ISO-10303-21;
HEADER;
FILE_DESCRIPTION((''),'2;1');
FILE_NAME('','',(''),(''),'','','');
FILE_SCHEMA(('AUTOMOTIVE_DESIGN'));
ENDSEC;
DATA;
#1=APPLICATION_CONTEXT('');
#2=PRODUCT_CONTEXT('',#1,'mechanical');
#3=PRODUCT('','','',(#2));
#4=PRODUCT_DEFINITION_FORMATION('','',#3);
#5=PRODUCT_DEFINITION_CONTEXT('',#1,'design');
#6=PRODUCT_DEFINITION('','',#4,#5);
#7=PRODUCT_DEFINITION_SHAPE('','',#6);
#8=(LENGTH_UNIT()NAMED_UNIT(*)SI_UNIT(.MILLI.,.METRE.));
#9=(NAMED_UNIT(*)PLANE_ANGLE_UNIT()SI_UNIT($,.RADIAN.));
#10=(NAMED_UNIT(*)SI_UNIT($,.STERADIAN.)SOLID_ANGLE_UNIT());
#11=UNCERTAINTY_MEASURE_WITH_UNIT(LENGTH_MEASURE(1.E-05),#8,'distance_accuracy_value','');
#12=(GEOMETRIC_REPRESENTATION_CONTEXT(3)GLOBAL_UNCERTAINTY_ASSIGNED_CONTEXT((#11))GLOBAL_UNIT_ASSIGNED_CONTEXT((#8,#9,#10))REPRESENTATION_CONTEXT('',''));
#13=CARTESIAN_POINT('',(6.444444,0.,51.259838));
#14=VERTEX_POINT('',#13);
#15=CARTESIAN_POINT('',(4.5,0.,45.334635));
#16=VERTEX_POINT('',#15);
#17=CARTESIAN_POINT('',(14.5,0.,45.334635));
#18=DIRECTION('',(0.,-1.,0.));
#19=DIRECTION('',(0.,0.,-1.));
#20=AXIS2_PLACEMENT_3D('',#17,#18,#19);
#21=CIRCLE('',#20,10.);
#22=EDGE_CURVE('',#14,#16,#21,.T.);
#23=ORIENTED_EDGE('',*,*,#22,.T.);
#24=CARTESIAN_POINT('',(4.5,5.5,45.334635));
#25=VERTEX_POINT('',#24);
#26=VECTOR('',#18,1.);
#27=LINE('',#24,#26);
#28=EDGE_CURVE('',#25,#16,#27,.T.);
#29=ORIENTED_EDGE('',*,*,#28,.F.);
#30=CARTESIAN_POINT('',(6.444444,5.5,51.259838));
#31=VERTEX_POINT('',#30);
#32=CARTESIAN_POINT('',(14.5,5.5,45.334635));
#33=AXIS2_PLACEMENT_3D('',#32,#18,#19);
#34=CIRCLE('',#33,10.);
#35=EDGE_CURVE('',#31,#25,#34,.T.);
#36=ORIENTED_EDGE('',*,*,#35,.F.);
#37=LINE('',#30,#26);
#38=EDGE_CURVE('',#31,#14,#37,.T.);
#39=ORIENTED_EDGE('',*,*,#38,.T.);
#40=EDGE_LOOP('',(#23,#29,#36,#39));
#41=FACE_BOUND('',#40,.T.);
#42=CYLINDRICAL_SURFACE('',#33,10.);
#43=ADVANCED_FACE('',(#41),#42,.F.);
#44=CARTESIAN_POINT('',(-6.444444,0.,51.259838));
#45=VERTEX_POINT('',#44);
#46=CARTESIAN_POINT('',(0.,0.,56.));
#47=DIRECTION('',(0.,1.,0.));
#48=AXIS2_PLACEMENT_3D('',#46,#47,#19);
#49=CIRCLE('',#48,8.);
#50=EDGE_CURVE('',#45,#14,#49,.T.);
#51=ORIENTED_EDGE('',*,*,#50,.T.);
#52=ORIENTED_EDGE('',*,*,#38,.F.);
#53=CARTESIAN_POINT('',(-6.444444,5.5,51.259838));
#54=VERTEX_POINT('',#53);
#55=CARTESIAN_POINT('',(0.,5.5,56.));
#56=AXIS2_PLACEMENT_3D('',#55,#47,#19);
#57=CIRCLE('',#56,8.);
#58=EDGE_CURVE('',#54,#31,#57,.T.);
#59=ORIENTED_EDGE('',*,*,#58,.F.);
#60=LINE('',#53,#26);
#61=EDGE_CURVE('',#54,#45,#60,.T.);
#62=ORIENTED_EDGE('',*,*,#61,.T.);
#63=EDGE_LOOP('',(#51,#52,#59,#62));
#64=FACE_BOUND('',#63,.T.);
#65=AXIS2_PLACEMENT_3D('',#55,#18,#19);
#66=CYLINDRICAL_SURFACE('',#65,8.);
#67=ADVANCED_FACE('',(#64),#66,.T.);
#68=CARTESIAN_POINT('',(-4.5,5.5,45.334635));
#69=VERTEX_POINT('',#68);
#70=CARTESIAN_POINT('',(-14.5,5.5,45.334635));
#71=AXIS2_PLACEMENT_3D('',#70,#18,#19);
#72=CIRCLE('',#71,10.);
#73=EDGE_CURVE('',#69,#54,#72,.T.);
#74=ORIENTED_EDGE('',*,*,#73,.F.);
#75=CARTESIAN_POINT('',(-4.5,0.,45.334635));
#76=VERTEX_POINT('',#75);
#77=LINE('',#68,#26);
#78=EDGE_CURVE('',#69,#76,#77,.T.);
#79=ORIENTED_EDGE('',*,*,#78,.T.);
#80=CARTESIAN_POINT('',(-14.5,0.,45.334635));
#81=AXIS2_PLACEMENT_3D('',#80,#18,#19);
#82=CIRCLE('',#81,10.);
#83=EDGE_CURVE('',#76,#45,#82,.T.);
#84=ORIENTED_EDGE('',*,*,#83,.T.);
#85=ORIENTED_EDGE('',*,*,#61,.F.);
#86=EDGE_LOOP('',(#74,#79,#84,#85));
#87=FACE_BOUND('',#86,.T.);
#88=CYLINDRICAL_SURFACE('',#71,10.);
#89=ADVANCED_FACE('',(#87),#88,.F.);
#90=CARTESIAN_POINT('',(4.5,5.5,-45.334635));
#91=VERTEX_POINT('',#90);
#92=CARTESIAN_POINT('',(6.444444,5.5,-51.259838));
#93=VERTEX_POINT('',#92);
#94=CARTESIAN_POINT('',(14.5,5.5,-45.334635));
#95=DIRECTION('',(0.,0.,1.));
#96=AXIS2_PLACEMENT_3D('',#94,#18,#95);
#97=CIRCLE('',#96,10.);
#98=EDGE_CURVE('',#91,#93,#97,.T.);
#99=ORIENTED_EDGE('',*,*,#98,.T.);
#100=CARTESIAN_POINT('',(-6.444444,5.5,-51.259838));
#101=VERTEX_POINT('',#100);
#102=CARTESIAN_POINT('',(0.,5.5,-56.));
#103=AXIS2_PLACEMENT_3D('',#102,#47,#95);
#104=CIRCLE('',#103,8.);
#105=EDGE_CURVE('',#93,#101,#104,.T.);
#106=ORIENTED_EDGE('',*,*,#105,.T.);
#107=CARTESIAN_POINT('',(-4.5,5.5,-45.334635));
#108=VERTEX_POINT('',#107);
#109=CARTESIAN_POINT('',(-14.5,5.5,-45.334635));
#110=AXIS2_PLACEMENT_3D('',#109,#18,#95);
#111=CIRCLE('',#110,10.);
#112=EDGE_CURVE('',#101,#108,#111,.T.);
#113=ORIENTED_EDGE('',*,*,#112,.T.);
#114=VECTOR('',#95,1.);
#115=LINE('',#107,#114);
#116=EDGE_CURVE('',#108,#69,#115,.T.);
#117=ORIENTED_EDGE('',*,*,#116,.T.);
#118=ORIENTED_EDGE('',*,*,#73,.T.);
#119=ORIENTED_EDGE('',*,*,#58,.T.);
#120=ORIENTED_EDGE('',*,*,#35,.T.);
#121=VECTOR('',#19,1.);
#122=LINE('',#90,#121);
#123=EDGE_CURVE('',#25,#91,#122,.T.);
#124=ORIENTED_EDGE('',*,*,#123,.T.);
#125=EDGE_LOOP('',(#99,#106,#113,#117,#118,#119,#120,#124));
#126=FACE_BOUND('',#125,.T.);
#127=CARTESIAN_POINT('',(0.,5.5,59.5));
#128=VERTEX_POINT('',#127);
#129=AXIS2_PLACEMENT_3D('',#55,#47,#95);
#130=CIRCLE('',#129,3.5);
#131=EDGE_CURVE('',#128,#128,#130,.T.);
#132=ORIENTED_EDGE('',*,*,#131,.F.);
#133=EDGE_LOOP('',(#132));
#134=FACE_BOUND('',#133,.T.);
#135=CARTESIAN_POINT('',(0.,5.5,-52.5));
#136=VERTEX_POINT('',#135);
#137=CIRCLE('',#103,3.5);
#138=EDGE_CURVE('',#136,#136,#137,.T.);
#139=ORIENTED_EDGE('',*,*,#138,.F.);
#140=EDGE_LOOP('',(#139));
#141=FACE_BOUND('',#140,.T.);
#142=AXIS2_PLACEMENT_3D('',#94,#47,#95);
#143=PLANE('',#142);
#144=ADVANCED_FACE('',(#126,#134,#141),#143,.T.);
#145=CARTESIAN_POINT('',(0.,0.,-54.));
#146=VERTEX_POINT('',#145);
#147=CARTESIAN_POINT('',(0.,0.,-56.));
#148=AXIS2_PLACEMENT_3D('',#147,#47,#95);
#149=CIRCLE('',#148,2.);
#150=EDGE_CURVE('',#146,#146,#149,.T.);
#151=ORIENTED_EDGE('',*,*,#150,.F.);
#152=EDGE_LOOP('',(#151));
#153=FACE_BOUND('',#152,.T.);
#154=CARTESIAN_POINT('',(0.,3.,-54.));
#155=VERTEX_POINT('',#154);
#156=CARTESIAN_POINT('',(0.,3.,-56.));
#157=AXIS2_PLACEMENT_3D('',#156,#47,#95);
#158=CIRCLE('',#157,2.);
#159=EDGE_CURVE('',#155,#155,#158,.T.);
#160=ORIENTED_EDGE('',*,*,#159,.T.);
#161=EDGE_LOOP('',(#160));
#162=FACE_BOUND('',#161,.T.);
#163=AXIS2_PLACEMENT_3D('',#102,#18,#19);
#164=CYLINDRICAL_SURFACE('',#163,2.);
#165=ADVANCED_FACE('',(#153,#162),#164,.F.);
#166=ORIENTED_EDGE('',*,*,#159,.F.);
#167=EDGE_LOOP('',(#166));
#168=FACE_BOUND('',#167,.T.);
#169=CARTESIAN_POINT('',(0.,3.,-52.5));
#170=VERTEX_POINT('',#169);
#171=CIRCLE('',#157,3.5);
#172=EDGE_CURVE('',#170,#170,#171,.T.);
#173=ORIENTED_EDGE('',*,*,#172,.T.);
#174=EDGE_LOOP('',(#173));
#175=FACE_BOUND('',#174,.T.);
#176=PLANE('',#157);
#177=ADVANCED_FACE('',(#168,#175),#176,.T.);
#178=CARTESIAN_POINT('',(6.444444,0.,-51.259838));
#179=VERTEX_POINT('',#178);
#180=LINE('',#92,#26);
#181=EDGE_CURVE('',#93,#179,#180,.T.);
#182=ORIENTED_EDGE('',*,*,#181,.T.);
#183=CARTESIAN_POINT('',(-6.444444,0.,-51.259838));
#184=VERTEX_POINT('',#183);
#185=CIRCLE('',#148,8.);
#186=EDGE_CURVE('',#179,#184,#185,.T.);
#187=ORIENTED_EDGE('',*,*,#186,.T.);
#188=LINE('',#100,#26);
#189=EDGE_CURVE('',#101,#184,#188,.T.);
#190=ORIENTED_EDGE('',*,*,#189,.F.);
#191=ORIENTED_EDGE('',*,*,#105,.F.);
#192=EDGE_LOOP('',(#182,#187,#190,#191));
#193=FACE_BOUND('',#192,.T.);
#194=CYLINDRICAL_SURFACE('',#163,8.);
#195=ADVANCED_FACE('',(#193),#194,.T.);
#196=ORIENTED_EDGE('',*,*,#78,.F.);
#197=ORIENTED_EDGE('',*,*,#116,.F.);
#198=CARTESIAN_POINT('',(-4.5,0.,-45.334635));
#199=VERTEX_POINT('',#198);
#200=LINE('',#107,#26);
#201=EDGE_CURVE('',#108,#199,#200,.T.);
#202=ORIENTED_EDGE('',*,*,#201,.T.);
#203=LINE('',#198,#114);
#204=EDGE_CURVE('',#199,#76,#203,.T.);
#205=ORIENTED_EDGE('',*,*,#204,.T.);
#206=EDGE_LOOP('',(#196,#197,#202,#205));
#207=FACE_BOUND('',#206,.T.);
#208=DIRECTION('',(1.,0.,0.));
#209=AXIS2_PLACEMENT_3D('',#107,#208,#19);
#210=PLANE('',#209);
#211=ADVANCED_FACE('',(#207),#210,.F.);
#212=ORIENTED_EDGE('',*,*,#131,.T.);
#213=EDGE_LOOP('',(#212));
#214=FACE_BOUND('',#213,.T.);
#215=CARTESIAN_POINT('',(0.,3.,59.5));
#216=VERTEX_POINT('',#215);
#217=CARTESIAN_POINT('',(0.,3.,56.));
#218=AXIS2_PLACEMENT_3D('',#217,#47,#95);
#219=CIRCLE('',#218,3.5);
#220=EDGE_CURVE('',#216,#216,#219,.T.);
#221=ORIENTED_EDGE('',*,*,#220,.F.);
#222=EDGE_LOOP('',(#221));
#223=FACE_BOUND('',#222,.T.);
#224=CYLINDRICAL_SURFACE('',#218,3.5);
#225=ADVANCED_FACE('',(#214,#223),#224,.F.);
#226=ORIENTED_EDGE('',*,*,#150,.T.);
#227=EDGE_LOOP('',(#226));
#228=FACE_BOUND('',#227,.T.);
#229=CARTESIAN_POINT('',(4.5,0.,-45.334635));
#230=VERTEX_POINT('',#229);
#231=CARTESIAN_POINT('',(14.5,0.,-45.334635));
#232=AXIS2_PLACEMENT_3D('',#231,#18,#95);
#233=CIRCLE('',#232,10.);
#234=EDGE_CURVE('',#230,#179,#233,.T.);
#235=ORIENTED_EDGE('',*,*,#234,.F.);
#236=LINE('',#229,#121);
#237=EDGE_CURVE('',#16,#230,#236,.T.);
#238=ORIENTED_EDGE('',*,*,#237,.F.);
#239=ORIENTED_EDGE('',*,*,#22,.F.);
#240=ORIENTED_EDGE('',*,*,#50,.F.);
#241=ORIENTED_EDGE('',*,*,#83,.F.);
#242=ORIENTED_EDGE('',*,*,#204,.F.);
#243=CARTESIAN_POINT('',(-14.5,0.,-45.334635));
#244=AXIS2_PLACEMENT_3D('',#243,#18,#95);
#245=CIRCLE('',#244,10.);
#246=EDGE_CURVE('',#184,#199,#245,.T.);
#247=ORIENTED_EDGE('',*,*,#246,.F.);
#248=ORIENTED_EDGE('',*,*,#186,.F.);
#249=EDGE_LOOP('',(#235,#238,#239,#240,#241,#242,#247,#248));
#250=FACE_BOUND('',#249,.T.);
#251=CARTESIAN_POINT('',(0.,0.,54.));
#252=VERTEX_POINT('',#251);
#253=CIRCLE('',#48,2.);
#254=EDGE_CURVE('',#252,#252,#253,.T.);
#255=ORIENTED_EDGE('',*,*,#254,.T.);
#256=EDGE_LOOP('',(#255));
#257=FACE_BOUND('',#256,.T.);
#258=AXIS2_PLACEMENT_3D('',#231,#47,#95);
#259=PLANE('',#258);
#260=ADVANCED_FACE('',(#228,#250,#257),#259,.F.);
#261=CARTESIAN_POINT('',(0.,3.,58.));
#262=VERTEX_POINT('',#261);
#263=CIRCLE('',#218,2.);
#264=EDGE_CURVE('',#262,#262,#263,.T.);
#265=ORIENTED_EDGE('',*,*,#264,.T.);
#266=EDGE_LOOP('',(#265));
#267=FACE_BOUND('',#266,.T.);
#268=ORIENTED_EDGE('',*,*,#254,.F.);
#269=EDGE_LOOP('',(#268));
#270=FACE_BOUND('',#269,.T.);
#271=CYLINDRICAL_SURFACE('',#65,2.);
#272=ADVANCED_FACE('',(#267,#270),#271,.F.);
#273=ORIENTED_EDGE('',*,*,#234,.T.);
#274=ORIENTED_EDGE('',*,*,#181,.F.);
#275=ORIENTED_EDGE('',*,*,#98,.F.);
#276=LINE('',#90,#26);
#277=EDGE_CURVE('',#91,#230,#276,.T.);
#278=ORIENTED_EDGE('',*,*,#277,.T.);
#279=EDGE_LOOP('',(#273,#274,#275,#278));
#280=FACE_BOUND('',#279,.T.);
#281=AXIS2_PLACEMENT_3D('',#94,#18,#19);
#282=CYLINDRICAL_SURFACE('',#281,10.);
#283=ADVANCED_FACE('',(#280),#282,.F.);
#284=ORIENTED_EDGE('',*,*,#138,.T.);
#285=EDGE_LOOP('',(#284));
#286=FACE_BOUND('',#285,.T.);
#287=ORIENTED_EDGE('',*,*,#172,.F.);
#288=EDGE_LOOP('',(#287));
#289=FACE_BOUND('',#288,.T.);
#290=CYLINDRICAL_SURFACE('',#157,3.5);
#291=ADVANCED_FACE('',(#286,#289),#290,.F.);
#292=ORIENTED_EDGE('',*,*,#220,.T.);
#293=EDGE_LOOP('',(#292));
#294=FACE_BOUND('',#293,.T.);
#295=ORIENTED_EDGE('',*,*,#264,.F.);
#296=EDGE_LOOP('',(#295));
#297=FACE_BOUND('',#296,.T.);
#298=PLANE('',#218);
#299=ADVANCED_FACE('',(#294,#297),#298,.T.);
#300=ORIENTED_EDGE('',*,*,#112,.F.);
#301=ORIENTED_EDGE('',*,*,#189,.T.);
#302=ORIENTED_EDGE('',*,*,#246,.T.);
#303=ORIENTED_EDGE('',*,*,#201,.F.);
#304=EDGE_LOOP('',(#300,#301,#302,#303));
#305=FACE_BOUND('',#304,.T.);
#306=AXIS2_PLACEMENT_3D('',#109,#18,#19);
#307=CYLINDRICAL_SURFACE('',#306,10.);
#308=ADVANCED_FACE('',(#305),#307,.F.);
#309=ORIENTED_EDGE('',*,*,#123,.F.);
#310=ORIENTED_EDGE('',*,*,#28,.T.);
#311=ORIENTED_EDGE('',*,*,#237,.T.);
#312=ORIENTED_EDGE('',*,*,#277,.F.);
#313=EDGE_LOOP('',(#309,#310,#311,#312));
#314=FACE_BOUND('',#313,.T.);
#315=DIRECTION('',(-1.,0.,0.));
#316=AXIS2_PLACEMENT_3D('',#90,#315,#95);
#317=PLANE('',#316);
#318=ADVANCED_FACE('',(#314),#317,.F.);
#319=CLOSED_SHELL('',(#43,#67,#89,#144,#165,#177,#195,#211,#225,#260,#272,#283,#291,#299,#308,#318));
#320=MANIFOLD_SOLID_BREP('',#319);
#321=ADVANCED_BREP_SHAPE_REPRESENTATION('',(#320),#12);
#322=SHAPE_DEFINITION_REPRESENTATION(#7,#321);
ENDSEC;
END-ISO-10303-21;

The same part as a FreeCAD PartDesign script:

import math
import FreeCAD as App
import Part
import Sketcher

V = App.Vector
Q = App.Units.Quantity

doc = App.newDocument("Part")
body = doc.addObject("PartDesign::Body", "Body")

# Sketch on XZ plane
sketch1 = body.newObject("Sketcher::SketchObject", "Sketch")
sketch1.AttachmentSupport = (doc.getObject("XZ_Plane"), [""])
sketch1.MapMode = "FlatFace"
sketch1.addGeometry([
    Part.LineSegment(V(-4.5, -45.3, 0), V(-4.5, 45.3, 0)),  # 0
    Part.ArcOfCircle(Part.Circle(V(-14.5, 45.3, 0), V(0, 0, 1), 10), math.radians(0), math.radians(36)),  # 1
    Part.ArcOfCircle(Part.Circle(V(0, 56, 0), V(0, 0, 1), 8), math.radians(-36), math.radians(216)),  # 2
    Part.ArcOfCircle(Part.Circle(V(14.5, 45.3, 0), V(0, 0, 1), 10), math.radians(144), math.radians(180)),  # 3
    Part.LineSegment(V(4.5, 45.3, 0), V(4.5, -45.3, 0)),  # 4
    Part.ArcOfCircle(Part.Circle(V(14.5, -45.3, 0), V(0, 0, 1), 10), math.radians(180), math.radians(216)),  # 5
    Part.ArcOfCircle(Part.Circle(V(0, -56, 0), V(0, 0, 1), 8), math.radians(144), math.radians(396)),  # 6
    Part.ArcOfCircle(Part.Circle(V(-14.5, -45.3, 0), V(0, 0, 1), 10), math.radians(-36), math.radians(0)),  # 7
    Part.Circle(V(0, 56, 0), V(0, 0, 1), 2),  # 8
    Part.Circle(V(0, -56, 0), V(0, 0, 1), 2),  # 9
], False)
sketch1.addConstraint([
    Sketcher.Constraint("Tangent", 0, 2, 1, 1),
    Sketcher.Constraint("Tangent", 1, 2, 2, 2),
    Sketcher.Constraint("Tangent", 2, 1, 3, 1),
    Sketcher.Constraint("Tangent", 3, 2, 4, 1),
    Sketcher.Constraint("Tangent", 4, 2, 5, 1),
    Sketcher.Constraint("Tangent", 5, 2, 6, 2),
    Sketcher.Constraint("Tangent", 6, 1, 7, 1),
    Sketcher.Constraint("Tangent", 7, 2, 0, 1),
    Sketcher.Constraint("Vertical", 0),
    Sketcher.Constraint("Vertical", 4),
    Sketcher.Constraint("Coincident", 8, 3, 2, 3),
    Sketcher.Constraint("Coincident", 9, 3, 6, 3),
    Sketcher.Constraint("Equal", 1, 3),
    Sketcher.Constraint("Equal", 3, 5),
    Sketcher.Constraint("Equal", 2, 6),
    Sketcher.Constraint("Equal", 5, 7),
    Sketcher.Constraint("Equal", 8, 9),
    Sketcher.Constraint("Symmetric", 1, 3, 5, 3, -1, 1),
    Sketcher.Constraint("Symmetric", 2, 3, 6, 3, -1),
    Sketcher.Constraint("Diameter", 8, Q("4 mm")),
    Sketcher.Constraint("Radius", 1, Q("10 mm")),
    Sketcher.Constraint("Radius", 2, Q("8 mm")),
    Sketcher.Constraint("DistanceY", -1, 1, 2, 3, Q("56 mm")),
    Sketcher.Constraint("DistanceX", 1, 3, 3, 3, Q("29 mm")),
])
pad1 = body.newObject("PartDesign::Pad", "Pad")
pad1.Profile = sketch1
pad1.Length = 5.5
pad1.Reversed = True

# Sketch on XZ plane
sketch2 = body.newObject("Sketcher::SketchObject", "Sketch001")
sketch2.AttachmentSupport = (doc.getObject("XZ_Plane"), [""])
sketch2.MapMode = "FlatFace"
sketch2.AttachmentOffset = App.Placement(V(0, 0, -3), App.Rotation())
sketch2.addGeometry([
    Part.Circle(V(0, -56, 0), V(0, 0, 1), 3.5),
    Part.Circle(V(0, -56, 0), V(0, 0, 1), 2),
    Part.Circle(V(0, 56, 0), V(0, 0, 1), 3.5),
    Part.Circle(V(0, 56, 0), V(0, 0, 1), 2),
], False)
sketch2.addConstraint([
    Sketcher.Constraint("Coincident", 1, 3, 0, 3),
    Sketcher.Constraint("Coincident", 3, 3, 2, 3),
    Sketcher.Constraint("Equal", 0, 2),
    Sketcher.Constraint("Equal", 1, 3),
    Sketcher.Constraint("Symmetric", 0, 3, 2, 3, -1, 1),
    Sketcher.Constraint("PointOnObject", 0, 3, -2),
    Sketcher.Constraint("Diameter", 0, Q("7 mm")),
    Sketcher.Constraint("Diameter", 1, Q("4 mm")),
    Sketcher.Constraint("DistanceY", 0, 3, -1, 1, Q("56 mm")),
])
pocket1 = body.newObject("PartDesign::Pocket", "Pocket")
pocket1.Profile = sketch2
pocket1.Length = 2.5

doc.recompute()
